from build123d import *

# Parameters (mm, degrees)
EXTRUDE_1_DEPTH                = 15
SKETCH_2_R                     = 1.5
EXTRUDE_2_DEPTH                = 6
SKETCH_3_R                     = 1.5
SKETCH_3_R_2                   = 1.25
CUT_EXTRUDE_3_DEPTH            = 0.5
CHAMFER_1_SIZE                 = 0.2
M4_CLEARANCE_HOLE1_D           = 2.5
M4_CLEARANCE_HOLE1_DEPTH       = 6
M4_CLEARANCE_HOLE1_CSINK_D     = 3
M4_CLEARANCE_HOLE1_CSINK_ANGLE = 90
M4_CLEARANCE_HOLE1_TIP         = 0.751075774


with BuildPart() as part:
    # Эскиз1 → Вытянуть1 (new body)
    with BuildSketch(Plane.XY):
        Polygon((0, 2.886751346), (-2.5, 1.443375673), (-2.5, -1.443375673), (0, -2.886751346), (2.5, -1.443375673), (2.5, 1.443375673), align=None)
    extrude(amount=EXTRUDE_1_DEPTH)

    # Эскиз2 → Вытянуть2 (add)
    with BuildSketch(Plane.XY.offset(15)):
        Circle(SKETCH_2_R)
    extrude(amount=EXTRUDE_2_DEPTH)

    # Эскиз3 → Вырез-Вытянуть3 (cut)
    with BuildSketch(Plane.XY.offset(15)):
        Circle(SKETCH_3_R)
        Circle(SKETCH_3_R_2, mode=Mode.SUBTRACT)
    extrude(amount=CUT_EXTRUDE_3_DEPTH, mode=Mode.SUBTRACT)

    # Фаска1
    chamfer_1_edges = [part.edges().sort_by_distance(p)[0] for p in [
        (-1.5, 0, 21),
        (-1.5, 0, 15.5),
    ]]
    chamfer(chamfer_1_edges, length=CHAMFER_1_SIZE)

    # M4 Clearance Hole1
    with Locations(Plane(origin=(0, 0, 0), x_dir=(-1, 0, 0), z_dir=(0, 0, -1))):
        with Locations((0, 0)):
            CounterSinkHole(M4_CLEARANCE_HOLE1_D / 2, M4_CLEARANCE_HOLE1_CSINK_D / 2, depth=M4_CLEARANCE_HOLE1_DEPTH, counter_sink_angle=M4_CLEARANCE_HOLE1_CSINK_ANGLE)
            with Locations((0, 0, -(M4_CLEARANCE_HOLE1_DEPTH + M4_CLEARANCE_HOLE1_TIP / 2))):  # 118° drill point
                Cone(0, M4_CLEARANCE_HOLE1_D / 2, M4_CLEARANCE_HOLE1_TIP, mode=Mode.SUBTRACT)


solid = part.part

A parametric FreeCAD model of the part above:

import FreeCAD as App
import Part
import Sketcher

V = App.Vector
Q = App.Units.Quantity


def edges_at(feature, points):
    """Names of the edges that pass closest to the given points."""
    edges = feature.Shape.Edges
    near = lambda p: min(range(len(edges)), key=lambda i: edges[i].distToShape(Part.Vertex(*p))[0])
    return sorted({f"Edge{near(p) + 1}" for p in points})


def add_polygon(sketch, points):
    """Adds a closed chain of lines whose ends are joined by coincident constraints."""
    first, n = sketch.GeometryCount, len(points)
    for a, b in zip(points, points[1:] + points[:1]):
        sketch.addGeometry(Part.LineSegment(App.Vector(*a, 0), App.Vector(*b, 0)), False)
    for i in range(n):
        sketch.addConstraint(Sketcher.Constraint("Coincident", first + i, 2, first + (i + 1) % n, 1))

doc = App.newDocument("Part")
body = doc.addObject("PartDesign::Body", "Body")

# Sketch on XY plane
sketch1 = body.newObject("Sketcher::SketchObject", "Sketch")
sketch1.AttachmentSupport = (doc.getObject("XY_Plane"), [""])
sketch1.MapMode = "FlatFace"
add_polygon(sketch1, [(0, 2.9), (-2.5, 1.4), (-2.5, -1.4), (0, -2.9), (2.5, -1.4), (2.5, 1.4)])  # lines 0-5
sketch1.addConstraint([
    Sketcher.Constraint("Vertical", 1),
    Sketcher.Constraint("Vertical", 4),
    Sketcher.Constraint("Symmetric", 0, 2, 3, 2, -1, 1),
    Sketcher.Constraint("Symmetric", 2, 2, 5, 2, -1, 1),
    Sketcher.Constraint("PointOnObject", 2, 2, -2),
    Sketcher.Constraint("Parallel", 2, 5),
    Sketcher.Constraint("Horizontal", 1, 2, 3, 2),
    Sketcher.Constraint("Angle", 0, Q("-150 deg")),
    Sketcher.Constraint("DistanceX", 1, 2, 3, 2, 5.0),
    Sketcher.Constraint("DistanceY", 1, 2, 1, 1, 2.886751),
])
pad1 = body.newObject("PartDesign::Pad", "Pad")
pad1.Profile = sketch1
pad1.Length = 15

# Sketch on XY plane
sketch2 = body.newObject("Sketcher::SketchObject", "Sketch001")
sketch2.AttachmentSupport = (doc.getObject("XY_Plane"), [""])
sketch2.MapMode = "FlatFace"
sketch2.AttachmentOffset = App.Placement(V(0, 0, 15), App.Rotation())
sketch2.addGeometry(Part.Circle(V(0, 0, 0), V(0, 0, 1), 1.5), False)
sketch2.addConstraint([
    Sketcher.Constraint("Coincident", 0, 3, -1, 1),
    Sketcher.Constraint("Diameter", 0, 3.0),
])
pad2 = body.newObject("PartDesign::Pad", "Pad001")
pad2.Profile = sketch2
pad2.Length = 6

# Sketch on XY plane
sketch3 = body.newObject("Sketcher::SketchObject", "Sketch002")
sketch3.AttachmentSupport = (doc.getObject("XY_Plane"), [""])
sketch3.MapMode = "FlatFace"
sketch3.AttachmentOffset = App.Placement(V(0, 0, 15), App.Rotation())
sketch3.addGeometry([
    Part.Circle(V(0, 0, 0), V(0, 0, 1), 1.5),
    Part.Circle(V(0, 0, 0), V(0, 0, 1), 1.2),
], False)
sketch3.addConstraint([
    Sketcher.Constraint("Coincident", 0, 3, -1, 1),
    Sketcher.Constraint("Coincident", 1, 3, -1, 1),
    Sketcher.Constraint("Diameter", 0, 3.0),
    Sketcher.Constraint("Diameter", 1, 2.5),
])
pocket1 = body.newObject("PartDesign::Pocket", "Pocket")
pocket1.Profile = sketch3
pocket1.Length = 0.5
pocket1.Reversed = True
doc.recompute()

chamfer = body.newObject("PartDesign::Chamfer", "Chamfer")
chamfer.Base = (pocket1, edges_at(pocket1, [(-1.5, 0, 21), (-1.5, 0, 15.5)]))
chamfer.Size = 0.2

# Sketch on XY plane
sketch4 = body.newObject("Sketcher::SketchObject", "Sketch003")
sketch4.AttachmentSupport = (doc.getObject("XY_Plane"), [""])
sketch4.MapMode = "FlatFace"
sketch4.addGeometry(Part.Circle(V(0, 0, 0), V(0, 0, 1), 1.2), False)
sketch4.addConstraint([
    Sketcher.Constraint("Coincident", 0, 3, -1, 1),
    Sketcher.Constraint("Diameter", 0, 2.5),
])
doc.recompute()
hole = body.newObject("PartDesign::Hole", "Hole")
hole.Profile = sketch4
hole.ThreadType = "None"
hole.Diameter = 2.5
hole.DepthType = "Dimension"
hole.Depth = 6
hole.DrillPoint = "Angled"
hole.DrillPointAngle = 118
hole.HoleCutType = "Countersink"
hole.HoleCutDiameter = 3
hole.HoleCutCountersinkAngle = 90
hole.Reversed = True

doc.recompute()
